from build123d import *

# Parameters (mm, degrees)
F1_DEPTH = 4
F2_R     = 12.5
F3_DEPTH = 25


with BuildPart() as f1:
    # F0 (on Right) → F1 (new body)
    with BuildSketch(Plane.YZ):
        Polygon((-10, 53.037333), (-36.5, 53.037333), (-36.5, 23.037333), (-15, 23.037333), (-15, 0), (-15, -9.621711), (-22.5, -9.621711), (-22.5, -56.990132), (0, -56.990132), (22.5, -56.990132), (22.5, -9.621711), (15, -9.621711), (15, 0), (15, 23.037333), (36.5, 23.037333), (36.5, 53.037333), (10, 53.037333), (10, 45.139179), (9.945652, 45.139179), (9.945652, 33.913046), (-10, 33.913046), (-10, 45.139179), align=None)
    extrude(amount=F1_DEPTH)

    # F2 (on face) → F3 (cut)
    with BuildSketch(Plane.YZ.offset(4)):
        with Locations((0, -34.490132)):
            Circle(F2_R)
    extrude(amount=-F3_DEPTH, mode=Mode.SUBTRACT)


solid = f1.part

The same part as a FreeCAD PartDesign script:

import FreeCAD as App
import Part
import Sketcher
Q = App.Units.Quantity

doc = App.newDocument("Part")
body = doc.addObject("PartDesign::Body", "Body")

# Sketch on YZ plane
sketch1 = doc.addObject("Sketcher::SketchObject", "Sketch")
body.addObject(sketch1)
sketch1.AttachmentSupport = (doc.YZ_Plane, [""])
sketch1.MapMode = "FlatFace"
sketch1.addGeometry(Part.LineSegment(App.Vector(-10, 53.037333, 0), App.Vector(-36.5, 53.037333, 0)), False)
sketch1.addGeometry(Part.LineSegment(App.Vector(-36.5, 53.037333, 0), App.Vector(-36.5, 23.037333, 0)), False)
sketch1.addGeometry(Part.LineSegment(App.Vector(-36.5, 23.037333, 0), App.Vector(-15, 23.037333, 0)), False)
sketch1.addGeometry(Part.LineSegment(App.Vector(-15, 23.037333, 0), App.Vector(-15, -9.621711, 0)), False)
sketch1.addGeometry(Part.LineSegment(App.Vector(-15, -9.621711, 0), App.Vector(-22.5, -9.621711, 0)), False)
sketch1.addGeometry(Part.LineSegment(App.Vector(-22.5, -9.621711, 0), App.Vector(-22.5, -56.990132, 0)), False)
sketch1.addGeometry(Part.LineSegment(App.Vector(-22.5, -56.990132, 0), App.Vector(22.5, -56.990132, 0)), False)
sketch1.addGeometry(Part.LineSegment(App.Vector(22.5, -56.990132, 0), App.Vector(22.5, -9.621711, 0)), False)
sketch1.addGeometry(Part.LineSegment(App.Vector(22.5, -9.621711, 0), App.Vector(15, -9.621711, 0)), False)
sketch1.addGeometry(Part.LineSegment(App.Vector(15, -9.621711, 0), App.Vector(15, 23.037333, 0)), False)
sketch1.addGeometry(Part.LineSegment(App.Vector(15, 23.037333, 0), App.Vector(36.5, 23.037333, 0)), False)
sketch1.addGeometry(Part.LineSegment(App.Vector(36.5, 23.037333, 0), App.Vector(36.5, 53.037333, 0)), False)
sketch1.addGeometry(Part.LineSegment(App.Vector(36.5, 53.037333, 0), App.Vector(10, 53.037333, 0)), False)
sketch1.addGeometry(Part.LineSegment(App.Vector(10, 53.037333, 0), App.Vector(10, 45.139179, 0)), False)
sketch1.addGeometry(Part.LineSegment(App.Vector(10, 45.139179, 0), App.Vector(9.945652, 45.139179, 0)), False)
sketch1.addGeometry(Part.LineSegment(App.Vector(9.945652, 45.139179, 0), App.Vector(9.945652, 33.913046, 0)), False)
sketch1.addGeometry(Part.LineSegment(App.Vector(9.945652, 33.913046, 0), App.Vector(-10, 33.913046, 0)), False)
sketch1.addGeometry(Part.LineSegment(App.Vector(-10, 33.913046, 0), App.Vector(-10, 53.037333, 0)), False)
sketch1.addConstraint(Sketcher.Constraint("Coincident", 0, 2, 1, 1))
sketch1.addConstraint(Sketcher.Constraint("Coincident", 1, 2, 2, 1))
sketch1.addConstraint(Sketcher.Constraint("Coincident", 2, 2, 3, 1))
sketch1.addConstraint(Sketcher.Constraint("Coincident", 3, 2, 4, 1))
sketch1.addConstraint(Sketcher.Constraint("Coincident", 4, 2, 5, 1))
sketch1.addConstraint(Sketcher.Constraint("Coincident", 5, 2, 6, 1))
sketch1.addConstraint(Sketcher.Constraint("Coincident", 6, 2, 7, 1))
sketch1.addConstraint(Sketcher.Constraint("Coincident", 7, 2, 8, 1))
sketch1.addConstraint(Sketcher.Constraint("Coincident", 8, 2, 9, 1))
sketch1.addConstraint(Sketcher.Constraint("Coincident", 9, 2, 10, 1))
sketch1.addConstraint(Sketcher.Constraint("Coincident", 10, 2, 11, 1))
sketch1.addConstraint(Sketcher.Constraint("Coincident", 11, 2, 12, 1))
sketch1.addConstraint(Sketcher.Constraint("Coincident", 12, 2, 13, 1))
sketch1.addConstraint(Sketcher.Constraint("Coincident", 13, 2, 14, 1))
sketch1.addConstraint(Sketcher.Constraint("Coincident", 14, 2, 15, 1))
sketch1.addConstraint(Sketcher.Constraint("Coincident", 15, 2, 16, 1))
sketch1.addConstraint(Sketcher.Constraint("Coincident", 16, 2, 17, 1))
sketch1.addConstraint(Sketcher.Constraint("Coincident", 17, 2, 0, 1))
sketch1.addConstraint(Sketcher.Constraint("Horizontal", 0))
sketch1.addConstraint(Sketcher.Constraint("Vertical", 1))
sketch1.addConstraint(Sketcher.Constraint("Horizontal", 2))
sketch1.addConstraint(Sketcher.Constraint("Vertical", 3))
sketch1.addConstraint(Sketcher.Constraint("Horizontal", 4))
sketch1.addConstraint(Sketcher.Constraint("Vertical", 5))
sketch1.addConstraint(Sketcher.Constraint("Horizontal", 6))
sketch1.addConstraint(Sketcher.Constraint("Vertical", 7))
sketch1.addConstraint(Sketcher.Constraint("Horizontal", 8))
sketch1.addConstraint(Sketcher.Constraint("Vertical", 9))
sketch1.addConstraint(Sketcher.Constraint("Horizontal", 10))
sketch1.addConstraint(Sketcher.Constraint("Vertical", 11))
sketch1.addConstraint(Sketcher.Constraint("Horizontal", 12))
sketch1.addConstraint(Sketcher.Constraint("Vertical", 13))
sketch1.addConstraint(Sketcher.Constraint("Horizontal", 14))
sketch1.addConstraint(Sketcher.Constraint("Vertical", 15))
sketch1.addConstraint(Sketcher.Constraint("Horizontal", 16))
sketch1.addConstraint(Sketcher.Constraint("Vertical", 17))
sketch1.addConstraint(Sketcher.Constraint("Symmetric", 4, 2, 7, 2, -2))
sketch1.addConstraint(Sketcher.Constraint("Symmetric", 2, 2, 9, 2, -2))
sketch1.addConstraint(Sketcher.Constraint("Symmetric", 0, 2, 11, 2, -2))
sketch1.addConstraint(Sketcher.Constraint("Equal", 0, 12))
sketch1.addConstraint(Sketcher.Constraint("DistanceX", 6, 1, 6, 2, Q("45 mm")))
sketch1.addConstraint(Sketcher.Constraint("DistanceY", 1, 2, 1, 1, Q("30 mm")))
sketch1.addConstraint(Sketcher.Constraint("DistanceX", 0, 2, 0, 1, Q("26.5 mm")))
sketch1.addConstraint(Sketcher.Constraint("DistanceX", 2, 1, 2, 2, Q("21.5 mm")))
sketch1.addConstraint(Sketcher.Constraint("DistanceX", 4, 2, 4, 1, Q("7.5 mm")))
sketch1.addConstraint(Sketcher.Constraint("DistanceY", 5, 2, 5, 1, Q("47.368421 mm")))
sketch1.addConstraint(Sketcher.Constraint("DistanceX", 14, 2, 14, 1, Q("0.054348 mm")))
sketch1.addConstraint(Sketcher.Constraint("DistanceY", 3, 2, 3, 1, Q("32.659044 mm")))
sketch1.addConstraint(Sketcher.Constraint("DistanceY", 13, 2, 13, 1, Q("7.898154 mm")))
sketch1.addConstraint(Sketcher.Constraint("DistanceY", 15, 2, 15, 1, Q("11.226133 mm")))
sketch1.addConstraint(Sketcher.Constraint("DistanceY", 3, 2, -1, 1, Q("9.621711 mm")))
pad1 = doc.addObject("PartDesign::Pad", "Pad")
body.addObject(pad1)
pad1.Profile = sketch1
pad1.Length = 4

# Sketch on YZ plane
sketch2 = doc.addObject("Sketcher::SketchObject", "Sketch001")
body.addObject(sketch2)
sketch2.AttachmentSupport = (doc.YZ_Plane, [""])
sketch2.MapMode = "FlatFace"
sketch2.AttachmentOffset = App.Placement(App.Vector(0, 0, 4), App.Rotation())
sketch2.addGeometry(Part.Circle(App.Vector(0, -34.490132, 0), App.Vector(0, 0, 1), 12.5), False)
sketch2.addConstraint(Sketcher.Constraint("PointOnObject", 0, 3, -2))
sketch2.addConstraint(Sketcher.Constraint("Diameter", 0, Q("25 mm")))
sketch2.addConstraint(Sketcher.Constraint("DistanceY", 0, 3, -1, 1, Q("34.490132 mm")))
pocket1 = doc.addObject("PartDesign::Pocket", "Pocket")
body.addObject(pocket1)
pocket1.Profile = sketch2
pocket1.Length = 25

doc.recompute()
